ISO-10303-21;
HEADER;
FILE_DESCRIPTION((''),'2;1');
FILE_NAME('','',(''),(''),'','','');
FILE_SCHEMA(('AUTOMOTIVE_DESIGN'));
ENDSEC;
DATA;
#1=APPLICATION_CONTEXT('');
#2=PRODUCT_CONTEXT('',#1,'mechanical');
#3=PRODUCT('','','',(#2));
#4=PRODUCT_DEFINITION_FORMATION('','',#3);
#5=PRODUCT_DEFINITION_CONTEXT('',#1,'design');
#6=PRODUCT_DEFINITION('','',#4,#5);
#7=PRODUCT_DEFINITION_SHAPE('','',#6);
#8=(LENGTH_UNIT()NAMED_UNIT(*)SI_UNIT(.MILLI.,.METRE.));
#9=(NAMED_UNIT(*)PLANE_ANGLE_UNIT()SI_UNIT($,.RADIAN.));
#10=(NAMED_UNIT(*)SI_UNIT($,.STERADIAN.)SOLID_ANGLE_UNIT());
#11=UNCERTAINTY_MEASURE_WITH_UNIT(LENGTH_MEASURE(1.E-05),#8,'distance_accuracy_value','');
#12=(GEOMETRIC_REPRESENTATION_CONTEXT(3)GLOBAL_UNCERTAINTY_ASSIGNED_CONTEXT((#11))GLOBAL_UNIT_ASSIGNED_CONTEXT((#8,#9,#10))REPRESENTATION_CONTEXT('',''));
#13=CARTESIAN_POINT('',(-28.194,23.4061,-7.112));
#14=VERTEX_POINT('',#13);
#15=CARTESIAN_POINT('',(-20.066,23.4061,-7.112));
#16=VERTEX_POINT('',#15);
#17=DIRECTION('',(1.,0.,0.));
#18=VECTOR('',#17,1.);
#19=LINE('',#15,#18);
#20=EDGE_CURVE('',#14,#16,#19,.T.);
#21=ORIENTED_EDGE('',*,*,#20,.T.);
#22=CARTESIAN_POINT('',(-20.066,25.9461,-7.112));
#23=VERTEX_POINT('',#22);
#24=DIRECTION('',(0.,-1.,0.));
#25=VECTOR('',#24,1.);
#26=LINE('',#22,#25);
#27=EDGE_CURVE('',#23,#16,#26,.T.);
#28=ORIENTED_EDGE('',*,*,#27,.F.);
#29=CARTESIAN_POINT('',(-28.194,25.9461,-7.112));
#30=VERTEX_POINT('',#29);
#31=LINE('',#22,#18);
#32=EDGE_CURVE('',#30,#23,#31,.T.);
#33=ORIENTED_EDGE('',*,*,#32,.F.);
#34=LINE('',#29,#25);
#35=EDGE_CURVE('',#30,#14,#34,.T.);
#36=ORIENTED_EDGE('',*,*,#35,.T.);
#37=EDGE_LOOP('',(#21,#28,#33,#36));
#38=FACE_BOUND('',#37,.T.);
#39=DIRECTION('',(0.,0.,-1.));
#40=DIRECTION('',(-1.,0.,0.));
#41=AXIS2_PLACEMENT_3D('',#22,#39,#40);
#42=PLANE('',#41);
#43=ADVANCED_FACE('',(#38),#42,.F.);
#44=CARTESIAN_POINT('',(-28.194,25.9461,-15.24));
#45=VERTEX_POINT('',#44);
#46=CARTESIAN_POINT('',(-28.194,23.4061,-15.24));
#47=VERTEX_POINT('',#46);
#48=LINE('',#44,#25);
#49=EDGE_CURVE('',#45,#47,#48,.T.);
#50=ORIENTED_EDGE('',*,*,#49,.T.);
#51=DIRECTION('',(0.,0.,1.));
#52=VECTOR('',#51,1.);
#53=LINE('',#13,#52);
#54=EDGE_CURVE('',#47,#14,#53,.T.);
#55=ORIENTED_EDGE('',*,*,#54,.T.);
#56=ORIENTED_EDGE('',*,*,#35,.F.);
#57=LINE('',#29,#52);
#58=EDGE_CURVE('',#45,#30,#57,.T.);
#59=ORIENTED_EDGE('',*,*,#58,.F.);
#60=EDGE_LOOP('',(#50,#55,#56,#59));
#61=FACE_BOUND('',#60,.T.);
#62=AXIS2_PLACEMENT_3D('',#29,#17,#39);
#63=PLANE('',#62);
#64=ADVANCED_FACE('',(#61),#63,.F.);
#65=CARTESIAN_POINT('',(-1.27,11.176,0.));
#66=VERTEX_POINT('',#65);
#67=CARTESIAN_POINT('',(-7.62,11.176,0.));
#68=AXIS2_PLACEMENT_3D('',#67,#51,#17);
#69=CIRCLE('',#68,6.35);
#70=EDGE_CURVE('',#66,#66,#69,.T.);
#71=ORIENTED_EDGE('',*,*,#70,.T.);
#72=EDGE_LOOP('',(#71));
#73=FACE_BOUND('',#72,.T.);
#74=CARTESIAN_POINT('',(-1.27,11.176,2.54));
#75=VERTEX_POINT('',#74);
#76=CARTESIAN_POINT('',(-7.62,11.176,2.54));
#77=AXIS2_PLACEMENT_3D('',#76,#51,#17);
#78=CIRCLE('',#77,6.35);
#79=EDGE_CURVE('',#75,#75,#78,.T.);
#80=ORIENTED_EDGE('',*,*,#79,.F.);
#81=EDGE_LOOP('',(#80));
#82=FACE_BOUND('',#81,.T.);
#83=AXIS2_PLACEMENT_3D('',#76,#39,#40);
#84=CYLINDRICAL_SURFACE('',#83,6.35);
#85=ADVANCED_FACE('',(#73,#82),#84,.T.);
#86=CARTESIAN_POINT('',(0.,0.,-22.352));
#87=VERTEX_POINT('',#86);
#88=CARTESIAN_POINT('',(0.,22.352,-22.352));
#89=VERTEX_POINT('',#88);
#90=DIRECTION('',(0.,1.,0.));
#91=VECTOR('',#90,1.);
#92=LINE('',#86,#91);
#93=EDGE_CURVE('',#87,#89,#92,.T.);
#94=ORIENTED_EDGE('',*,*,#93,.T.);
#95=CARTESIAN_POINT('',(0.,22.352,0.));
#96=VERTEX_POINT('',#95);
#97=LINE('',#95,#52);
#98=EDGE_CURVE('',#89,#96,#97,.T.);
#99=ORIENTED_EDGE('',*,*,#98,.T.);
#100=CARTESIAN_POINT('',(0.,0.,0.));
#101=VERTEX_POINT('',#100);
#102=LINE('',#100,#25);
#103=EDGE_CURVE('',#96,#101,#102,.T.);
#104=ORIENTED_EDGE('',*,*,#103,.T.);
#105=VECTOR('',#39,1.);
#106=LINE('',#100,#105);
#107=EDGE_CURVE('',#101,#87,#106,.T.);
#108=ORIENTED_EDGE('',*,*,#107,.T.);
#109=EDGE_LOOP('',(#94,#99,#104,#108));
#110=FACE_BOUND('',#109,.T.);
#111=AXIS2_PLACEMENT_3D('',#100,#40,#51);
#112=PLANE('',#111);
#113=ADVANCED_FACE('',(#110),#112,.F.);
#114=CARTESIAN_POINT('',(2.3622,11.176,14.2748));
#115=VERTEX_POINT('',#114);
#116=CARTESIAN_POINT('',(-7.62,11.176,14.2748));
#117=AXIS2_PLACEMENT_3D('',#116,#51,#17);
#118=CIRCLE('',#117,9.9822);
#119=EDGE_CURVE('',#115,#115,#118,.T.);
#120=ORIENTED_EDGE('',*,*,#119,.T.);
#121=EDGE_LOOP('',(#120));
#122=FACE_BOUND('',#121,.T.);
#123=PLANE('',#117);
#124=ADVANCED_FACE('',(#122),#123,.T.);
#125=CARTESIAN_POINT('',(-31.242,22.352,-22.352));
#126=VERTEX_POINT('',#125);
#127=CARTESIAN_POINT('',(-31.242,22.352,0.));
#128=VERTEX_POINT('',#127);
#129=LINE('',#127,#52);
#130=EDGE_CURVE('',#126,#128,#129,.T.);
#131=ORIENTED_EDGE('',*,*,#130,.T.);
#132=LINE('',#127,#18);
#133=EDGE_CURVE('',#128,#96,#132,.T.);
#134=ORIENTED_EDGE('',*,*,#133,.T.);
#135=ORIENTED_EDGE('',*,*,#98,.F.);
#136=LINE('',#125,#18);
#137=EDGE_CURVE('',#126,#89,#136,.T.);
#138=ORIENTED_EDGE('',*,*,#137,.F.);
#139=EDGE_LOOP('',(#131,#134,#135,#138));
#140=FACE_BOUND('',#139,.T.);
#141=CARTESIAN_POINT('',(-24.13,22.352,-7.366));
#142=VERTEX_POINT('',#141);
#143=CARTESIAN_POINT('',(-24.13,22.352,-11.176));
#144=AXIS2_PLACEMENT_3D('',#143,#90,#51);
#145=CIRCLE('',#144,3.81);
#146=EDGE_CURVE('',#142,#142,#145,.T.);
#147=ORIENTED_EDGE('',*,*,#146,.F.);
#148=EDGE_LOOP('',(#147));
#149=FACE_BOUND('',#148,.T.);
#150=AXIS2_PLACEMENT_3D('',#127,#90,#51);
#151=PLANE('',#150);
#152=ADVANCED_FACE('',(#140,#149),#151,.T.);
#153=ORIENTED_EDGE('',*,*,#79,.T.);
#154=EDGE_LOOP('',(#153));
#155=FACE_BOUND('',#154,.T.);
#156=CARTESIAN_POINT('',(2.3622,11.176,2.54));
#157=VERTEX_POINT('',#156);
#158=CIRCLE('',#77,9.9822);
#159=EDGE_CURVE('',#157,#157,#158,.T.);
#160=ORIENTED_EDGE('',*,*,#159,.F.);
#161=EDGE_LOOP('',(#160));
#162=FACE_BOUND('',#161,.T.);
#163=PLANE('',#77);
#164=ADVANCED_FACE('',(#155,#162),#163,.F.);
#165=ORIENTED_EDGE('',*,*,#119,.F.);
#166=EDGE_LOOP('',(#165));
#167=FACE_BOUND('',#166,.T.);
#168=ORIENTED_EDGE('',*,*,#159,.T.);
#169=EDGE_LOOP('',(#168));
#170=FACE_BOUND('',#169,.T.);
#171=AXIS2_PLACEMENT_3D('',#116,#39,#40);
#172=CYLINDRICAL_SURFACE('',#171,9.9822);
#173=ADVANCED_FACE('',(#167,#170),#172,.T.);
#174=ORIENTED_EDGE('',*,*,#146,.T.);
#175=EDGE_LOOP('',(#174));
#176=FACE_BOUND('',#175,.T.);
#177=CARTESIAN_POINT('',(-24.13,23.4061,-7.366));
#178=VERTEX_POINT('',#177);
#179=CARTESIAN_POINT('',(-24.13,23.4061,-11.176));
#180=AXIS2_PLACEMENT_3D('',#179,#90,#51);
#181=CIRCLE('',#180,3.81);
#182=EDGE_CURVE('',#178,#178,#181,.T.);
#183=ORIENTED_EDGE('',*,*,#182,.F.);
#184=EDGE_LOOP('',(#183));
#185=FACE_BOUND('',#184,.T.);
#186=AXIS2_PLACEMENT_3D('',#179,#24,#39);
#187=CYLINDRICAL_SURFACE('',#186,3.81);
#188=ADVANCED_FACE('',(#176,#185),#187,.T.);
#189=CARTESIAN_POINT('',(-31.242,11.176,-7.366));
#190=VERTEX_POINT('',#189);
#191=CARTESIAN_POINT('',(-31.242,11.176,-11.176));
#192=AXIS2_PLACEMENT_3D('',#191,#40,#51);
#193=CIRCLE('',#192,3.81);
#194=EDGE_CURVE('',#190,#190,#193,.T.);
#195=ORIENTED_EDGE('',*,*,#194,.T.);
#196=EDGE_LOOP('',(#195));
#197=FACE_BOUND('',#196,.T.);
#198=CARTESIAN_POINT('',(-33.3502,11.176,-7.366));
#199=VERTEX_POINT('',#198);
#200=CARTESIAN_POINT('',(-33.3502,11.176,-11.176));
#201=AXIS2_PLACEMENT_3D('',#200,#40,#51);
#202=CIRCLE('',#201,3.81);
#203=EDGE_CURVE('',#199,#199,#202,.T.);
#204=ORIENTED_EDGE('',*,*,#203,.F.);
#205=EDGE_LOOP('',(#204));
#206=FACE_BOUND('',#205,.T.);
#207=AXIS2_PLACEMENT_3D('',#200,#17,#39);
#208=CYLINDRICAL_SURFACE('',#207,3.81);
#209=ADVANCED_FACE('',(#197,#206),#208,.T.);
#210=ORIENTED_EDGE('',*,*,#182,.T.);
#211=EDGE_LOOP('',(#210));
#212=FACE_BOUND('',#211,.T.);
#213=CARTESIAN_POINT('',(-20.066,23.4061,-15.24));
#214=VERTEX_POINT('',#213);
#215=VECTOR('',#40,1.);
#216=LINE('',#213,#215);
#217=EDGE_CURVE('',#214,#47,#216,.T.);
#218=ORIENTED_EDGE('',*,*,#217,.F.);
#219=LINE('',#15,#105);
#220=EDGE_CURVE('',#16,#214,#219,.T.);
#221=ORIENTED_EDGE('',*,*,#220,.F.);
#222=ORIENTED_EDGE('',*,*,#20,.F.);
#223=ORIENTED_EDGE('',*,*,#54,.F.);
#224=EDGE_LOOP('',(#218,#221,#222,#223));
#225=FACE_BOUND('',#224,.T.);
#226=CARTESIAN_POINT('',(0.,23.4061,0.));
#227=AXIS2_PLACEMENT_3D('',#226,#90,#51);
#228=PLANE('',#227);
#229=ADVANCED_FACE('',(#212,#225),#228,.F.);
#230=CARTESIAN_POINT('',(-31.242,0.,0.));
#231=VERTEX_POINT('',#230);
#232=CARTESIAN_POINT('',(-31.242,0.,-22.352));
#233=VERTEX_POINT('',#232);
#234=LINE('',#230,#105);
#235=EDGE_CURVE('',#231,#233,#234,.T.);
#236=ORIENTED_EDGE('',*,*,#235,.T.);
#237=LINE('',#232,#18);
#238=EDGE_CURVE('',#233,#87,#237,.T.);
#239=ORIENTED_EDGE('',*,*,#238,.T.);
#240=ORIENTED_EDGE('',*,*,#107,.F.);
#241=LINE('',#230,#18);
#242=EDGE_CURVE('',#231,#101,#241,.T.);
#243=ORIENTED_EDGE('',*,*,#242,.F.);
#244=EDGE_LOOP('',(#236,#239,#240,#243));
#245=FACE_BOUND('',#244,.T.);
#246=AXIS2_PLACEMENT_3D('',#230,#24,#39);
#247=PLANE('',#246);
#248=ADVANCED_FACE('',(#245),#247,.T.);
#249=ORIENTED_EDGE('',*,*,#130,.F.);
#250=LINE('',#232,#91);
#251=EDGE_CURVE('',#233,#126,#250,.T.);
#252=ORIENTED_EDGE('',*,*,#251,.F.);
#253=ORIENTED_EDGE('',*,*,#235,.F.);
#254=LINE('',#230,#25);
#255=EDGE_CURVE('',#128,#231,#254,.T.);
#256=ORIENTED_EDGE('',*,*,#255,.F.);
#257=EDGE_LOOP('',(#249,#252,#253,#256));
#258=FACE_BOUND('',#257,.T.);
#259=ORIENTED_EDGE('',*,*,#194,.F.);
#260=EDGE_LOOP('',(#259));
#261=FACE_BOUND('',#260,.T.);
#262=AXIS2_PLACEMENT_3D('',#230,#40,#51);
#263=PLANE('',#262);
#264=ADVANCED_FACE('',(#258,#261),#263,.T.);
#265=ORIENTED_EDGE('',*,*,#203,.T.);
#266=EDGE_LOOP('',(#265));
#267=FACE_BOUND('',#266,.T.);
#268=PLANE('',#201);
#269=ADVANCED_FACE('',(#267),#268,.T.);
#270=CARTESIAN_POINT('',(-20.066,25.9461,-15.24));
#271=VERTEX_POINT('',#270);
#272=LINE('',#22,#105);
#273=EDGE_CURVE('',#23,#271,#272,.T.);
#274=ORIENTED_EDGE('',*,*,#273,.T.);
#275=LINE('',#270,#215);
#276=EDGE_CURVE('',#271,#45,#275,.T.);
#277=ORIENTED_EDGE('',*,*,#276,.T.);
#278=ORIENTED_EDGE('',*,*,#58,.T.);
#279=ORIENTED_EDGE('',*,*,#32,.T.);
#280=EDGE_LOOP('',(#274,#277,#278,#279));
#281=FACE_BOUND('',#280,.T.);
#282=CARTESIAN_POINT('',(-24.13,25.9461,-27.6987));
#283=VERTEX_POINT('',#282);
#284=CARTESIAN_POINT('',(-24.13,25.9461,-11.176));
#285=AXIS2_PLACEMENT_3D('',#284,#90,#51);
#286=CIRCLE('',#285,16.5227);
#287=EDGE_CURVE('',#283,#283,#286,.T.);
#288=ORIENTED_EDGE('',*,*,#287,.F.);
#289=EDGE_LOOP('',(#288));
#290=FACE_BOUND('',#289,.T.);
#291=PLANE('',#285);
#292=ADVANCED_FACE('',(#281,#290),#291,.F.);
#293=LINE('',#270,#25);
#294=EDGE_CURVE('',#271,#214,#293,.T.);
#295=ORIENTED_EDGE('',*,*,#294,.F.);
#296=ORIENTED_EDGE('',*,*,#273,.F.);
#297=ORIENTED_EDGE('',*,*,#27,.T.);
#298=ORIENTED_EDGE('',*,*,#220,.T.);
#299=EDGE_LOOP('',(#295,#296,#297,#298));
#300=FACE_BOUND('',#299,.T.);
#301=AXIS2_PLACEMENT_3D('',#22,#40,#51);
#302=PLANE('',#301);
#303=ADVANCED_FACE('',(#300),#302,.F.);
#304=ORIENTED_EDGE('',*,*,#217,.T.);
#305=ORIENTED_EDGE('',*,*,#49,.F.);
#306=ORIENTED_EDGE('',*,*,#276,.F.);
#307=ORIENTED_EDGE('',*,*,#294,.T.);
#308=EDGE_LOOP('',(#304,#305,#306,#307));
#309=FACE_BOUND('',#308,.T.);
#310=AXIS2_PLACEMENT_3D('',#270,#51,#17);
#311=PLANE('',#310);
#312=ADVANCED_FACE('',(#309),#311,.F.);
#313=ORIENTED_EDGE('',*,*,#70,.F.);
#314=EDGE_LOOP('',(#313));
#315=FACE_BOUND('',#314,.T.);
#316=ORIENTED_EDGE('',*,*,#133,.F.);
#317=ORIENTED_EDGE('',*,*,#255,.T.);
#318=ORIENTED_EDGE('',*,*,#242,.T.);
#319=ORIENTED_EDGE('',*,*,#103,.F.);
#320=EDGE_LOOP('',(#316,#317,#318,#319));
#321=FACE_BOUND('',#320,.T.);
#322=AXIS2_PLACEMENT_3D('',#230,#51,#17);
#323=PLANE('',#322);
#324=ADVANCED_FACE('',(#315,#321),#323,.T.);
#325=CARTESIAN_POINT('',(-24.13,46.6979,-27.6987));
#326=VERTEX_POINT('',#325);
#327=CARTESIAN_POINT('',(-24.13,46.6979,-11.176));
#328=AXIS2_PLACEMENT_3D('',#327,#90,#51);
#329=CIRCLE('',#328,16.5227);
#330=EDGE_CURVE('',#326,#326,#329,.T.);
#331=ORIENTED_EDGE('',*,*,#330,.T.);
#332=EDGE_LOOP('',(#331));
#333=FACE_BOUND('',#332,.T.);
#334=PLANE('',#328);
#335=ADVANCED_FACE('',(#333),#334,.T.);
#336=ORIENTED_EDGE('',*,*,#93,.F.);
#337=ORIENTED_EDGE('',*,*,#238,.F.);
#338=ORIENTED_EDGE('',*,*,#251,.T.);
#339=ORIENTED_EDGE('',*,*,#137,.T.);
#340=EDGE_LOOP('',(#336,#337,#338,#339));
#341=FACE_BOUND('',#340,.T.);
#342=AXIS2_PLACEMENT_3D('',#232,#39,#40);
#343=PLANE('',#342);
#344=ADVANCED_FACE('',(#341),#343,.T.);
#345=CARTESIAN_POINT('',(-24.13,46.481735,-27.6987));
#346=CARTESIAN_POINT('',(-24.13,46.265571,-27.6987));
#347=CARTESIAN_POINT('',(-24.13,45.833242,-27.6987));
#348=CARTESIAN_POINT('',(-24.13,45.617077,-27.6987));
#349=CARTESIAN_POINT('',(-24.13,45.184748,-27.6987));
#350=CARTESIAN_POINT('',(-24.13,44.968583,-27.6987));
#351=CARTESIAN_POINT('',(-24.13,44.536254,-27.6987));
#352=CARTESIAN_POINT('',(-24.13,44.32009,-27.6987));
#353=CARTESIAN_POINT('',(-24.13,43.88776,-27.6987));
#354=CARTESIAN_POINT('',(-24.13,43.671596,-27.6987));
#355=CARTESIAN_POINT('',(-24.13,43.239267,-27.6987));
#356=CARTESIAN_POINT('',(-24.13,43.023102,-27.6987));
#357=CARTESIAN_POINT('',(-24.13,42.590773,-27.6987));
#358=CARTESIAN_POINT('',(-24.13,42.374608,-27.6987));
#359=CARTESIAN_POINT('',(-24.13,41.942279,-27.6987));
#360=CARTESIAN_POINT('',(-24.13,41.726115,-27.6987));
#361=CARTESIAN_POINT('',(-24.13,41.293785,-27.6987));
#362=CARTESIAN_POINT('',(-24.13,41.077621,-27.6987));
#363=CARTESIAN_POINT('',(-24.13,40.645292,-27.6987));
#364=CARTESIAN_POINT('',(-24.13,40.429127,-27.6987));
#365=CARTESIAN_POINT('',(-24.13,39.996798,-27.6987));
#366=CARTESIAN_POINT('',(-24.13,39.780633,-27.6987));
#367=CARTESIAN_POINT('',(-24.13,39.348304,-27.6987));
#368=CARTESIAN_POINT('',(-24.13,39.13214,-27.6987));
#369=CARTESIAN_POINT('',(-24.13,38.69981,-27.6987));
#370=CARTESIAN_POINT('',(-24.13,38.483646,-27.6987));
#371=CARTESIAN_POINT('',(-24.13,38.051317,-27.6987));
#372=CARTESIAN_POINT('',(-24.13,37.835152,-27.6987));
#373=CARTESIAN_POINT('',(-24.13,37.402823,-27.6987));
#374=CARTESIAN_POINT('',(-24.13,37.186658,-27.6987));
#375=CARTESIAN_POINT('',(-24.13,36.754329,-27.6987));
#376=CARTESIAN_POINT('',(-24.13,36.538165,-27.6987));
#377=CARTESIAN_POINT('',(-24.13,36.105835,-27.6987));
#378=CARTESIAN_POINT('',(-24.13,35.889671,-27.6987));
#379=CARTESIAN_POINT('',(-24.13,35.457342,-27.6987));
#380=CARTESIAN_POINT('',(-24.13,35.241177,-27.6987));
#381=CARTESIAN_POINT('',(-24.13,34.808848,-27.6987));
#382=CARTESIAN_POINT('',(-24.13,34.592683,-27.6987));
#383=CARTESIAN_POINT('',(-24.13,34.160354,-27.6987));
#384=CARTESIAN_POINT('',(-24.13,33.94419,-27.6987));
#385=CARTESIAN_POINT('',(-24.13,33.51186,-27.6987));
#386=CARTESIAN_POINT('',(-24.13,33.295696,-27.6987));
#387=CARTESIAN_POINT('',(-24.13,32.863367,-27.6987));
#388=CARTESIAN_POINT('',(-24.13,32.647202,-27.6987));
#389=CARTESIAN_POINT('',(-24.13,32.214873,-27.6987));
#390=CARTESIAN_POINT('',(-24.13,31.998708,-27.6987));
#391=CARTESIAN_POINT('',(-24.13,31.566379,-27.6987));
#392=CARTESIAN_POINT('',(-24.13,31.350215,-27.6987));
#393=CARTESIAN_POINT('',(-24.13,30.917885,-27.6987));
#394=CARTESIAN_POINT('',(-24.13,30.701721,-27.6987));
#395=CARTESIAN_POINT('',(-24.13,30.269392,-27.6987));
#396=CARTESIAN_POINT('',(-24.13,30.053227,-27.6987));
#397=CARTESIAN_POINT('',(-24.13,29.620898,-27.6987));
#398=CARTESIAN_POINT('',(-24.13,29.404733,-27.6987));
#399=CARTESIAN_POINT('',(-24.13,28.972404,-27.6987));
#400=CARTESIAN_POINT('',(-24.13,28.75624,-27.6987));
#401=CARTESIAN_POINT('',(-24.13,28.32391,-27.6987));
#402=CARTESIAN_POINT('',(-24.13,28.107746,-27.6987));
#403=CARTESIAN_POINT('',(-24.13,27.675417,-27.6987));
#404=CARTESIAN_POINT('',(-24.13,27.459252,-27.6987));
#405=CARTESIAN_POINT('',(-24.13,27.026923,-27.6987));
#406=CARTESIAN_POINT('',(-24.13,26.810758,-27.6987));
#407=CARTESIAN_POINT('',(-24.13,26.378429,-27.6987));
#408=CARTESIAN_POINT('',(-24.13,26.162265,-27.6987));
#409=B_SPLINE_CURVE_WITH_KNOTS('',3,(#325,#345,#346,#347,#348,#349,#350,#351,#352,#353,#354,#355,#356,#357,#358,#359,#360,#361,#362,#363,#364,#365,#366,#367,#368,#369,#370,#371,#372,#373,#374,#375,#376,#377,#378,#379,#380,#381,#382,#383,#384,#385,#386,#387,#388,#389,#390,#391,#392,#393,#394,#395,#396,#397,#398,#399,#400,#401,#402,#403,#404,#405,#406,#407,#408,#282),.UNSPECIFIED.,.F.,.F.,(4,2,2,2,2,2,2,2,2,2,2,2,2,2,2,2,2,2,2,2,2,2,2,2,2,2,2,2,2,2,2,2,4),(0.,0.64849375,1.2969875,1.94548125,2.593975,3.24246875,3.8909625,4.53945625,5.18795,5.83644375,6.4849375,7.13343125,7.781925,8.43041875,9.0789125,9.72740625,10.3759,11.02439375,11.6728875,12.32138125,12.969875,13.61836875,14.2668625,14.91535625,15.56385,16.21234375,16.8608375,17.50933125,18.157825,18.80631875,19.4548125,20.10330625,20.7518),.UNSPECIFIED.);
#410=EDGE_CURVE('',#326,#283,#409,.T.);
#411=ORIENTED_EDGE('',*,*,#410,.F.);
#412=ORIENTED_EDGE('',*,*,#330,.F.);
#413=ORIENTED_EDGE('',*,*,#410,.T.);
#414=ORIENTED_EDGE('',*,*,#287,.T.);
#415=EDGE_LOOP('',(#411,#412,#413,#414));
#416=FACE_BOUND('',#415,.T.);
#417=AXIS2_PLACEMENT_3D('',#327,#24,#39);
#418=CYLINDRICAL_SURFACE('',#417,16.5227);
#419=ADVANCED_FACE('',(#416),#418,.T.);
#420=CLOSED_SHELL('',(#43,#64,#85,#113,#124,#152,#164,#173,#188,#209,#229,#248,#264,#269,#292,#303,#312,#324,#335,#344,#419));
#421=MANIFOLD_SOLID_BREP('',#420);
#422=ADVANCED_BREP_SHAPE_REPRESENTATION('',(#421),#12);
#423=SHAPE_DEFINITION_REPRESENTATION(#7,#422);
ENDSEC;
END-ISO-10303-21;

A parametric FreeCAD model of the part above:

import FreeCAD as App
import Part
import Sketcher

V = App.Vector
Q = App.Units.Quantity


def add_polygon(sketch, points):
    """Adds a closed chain of lines whose ends are joined by coincident constraints."""
    first, n = sketch.GeometryCount, len(points)
    for a, b in zip(points, points[1:] + points[:1]):
        sketch.addGeometry(Part.LineSegment(App.Vector(*a, 0), App.Vector(*b, 0)), False)
    for i in range(n):
        sketch.addConstraint(Sketcher.Constraint("Coincident", first + i, 2, first + (i + 1) % n, 1))

doc = App.newDocument("Part")
body = doc.addObject("PartDesign::Body", "Body")

sketch1 = body.newObject("Sketcher::SketchObject", "Sketch")
sketch1.AttachmentSupport = (doc.getObject("YZ_Plane"), [""])
sketch1.MapMode = "FlatFace"
add_polygon(sketch1, [(22, 0), (0, 0), (0, -22), (22, -22)])
sketch1.addConstraint([
    Sketcher.Constraint("Horizontal", 0),
    Sketcher.Constraint("Vertical", 1),
    Sketcher.Constraint("Horizontal", 2),
    Sketcher.Constraint("Vertical", 3),
    Sketcher.Constraint("Coincident", 0, 2, -1, 1),
    Sketcher.Constraint("Equal", 2, 1),
    Sketcher.Constraint("DistanceX", 0, 2, 0, 1, Q("0.88 in")),
])
pad1 = body.newObject("PartDesign::Pad", "Pad")
pad1.Profile = sketch1
pad1.Length = Q("1.23 in")
pad1.Reversed = True

sketch2 = body.newObject("Sketcher::SketchObject", "Sketch001")
sketch2.AttachmentSupport = (doc.getObject("XZ_Plane"), [""])
sketch2.MapMode = "FlatFace"
sketch2.AttachmentOffset = App.Placement(V(0, 0, -0.88 * 25.4), App.Rotation())
sketch2.addGeometry(Part.Circle(V(-24.1, -11.2, 0), V(0, 0, 1), 3.8), False)
sketch2.addConstraint([
    Sketcher.Constraint("Diameter", 0, Q("0.3 in")),
    Sketcher.Constraint("DistanceX", 0, 3, -1, 1, Q("0.95 in")),
    Sketcher.Constraint("DistanceY", 0, 3, -1, 1, Q("0.44 in")),
])
pad2 = body.newObject("PartDesign::Pad", "Pad001")
pad2.Profile = sketch2
pad2.Length = Q("0.0415 in")
pad2.Reversed = True

sketch3 = body.newObject("Sketcher::SketchObject", "Sketch002")
sketch3.AttachmentSupport = (doc.getObject("XZ_Plane"), [""])
sketch3.MapMode = "FlatFace"
sketch3.AttachmentOffset = App.Placement(V(0, 0, -0.9215 * 25.4), App.Rotation())
add_polygon(sketch3, [(-28, -15), (-28, -7), (-20, -7), (-20, -15)])
sketch3.addConstraint([
    Sketcher.Constraint("Vertical", 0),
    Sketcher.Constraint("Horizontal", 1),
    Sketcher.Constraint("Vertical", 2),
    Sketcher.Constraint("Horizontal", 3),
    Sketcher.Constraint("Equal", 3, 0),
    Sketcher.Constraint("DistanceX", 1, 1, 1, 2, Q("0.32 in")),
    Sketcher.Constraint("DistanceY", 2, 2, -1, 1, Q("0.6 in")),
    Sketcher.Constraint("DistanceX", 0, 2, -1, 1, Q("1.11 in")),
])
pad3 = body.newObject("PartDesign::Pad", "Pad002")
pad3.Profile = sketch3
pad3.Length = Q("0.1 in")
pad3.Reversed = True

sketch4 = body.newObject("Sketcher::SketchObject", "Sketch003")
sketch4.AttachmentSupport = (doc.getObject("XZ_Plane"), [""])
sketch4.MapMode = "FlatFace"
sketch4.AttachmentOffset = App.Placement(V(0, 0, -1.0215 * 25.4), App.Rotation())
sketch4.addGeometry(Part.Circle(V(-24, -11, 0), V(0, 0, 1), 17), False)
sketch4.addConstraint([
    Sketcher.Constraint("Diameter", 0, Q("1.301 in")),
    Sketcher.Constraint("DistanceX", 0, 3, -1, 1, Q("0.95 in")),
    Sketcher.Constraint("DistanceY", 0, 3, -1, 1, Q("0.44 in")),
])
pad4 = body.newObject("PartDesign::Pad", "Pad003")
pad4.Profile = sketch4
pad4.Length = Q("0.817 in")
pad4.Reversed = True

sketch5 = body.newObject("Sketcher::SketchObject", "Sketch004")
sketch5.AttachmentSupport = (doc.getObject("YZ_Plane"), [""])
sketch5.MapMode = "FlatFace"
sketch5.AttachmentOffset = App.Placement(V(0, 0, -1.23 * 25.4), App.Rotation())
sketch5.addGeometry(Part.Circle(V(11.2, -11.2, 0), V(0, 0, 1), 3.8), False)
sketch5.addConstraint([
    Sketcher.Constraint("Diameter", 0, Q("0.3 in")),
    Sketcher.Constraint("DistanceX", -1, 1, 0, 3, Q("0.44 in")),
    Sketcher.Constraint("DistanceY", 0, 3, -1, 1, Q("0.44 in")),
])
pad5 = body.newObject("PartDesign::Pad", "Pad004")
pad5.Profile = sketch5
pad5.Length = Q("0.083 in")
pad5.Reversed = True

sketch6 = body.newObject("Sketcher::SketchObject", "Sketch005")
sketch6.AttachmentSupport = (doc.getObject("XY_Plane"), [""])
sketch6.MapMode = "FlatFace"
sketch6.addGeometry(Part.Circle(V(-8, 11, 0), V(0, 0, 1), 6), False)
sketch6.addConstraint([
    Sketcher.Constraint("Diameter", 0, Q("0.5 in")),
    Sketcher.Constraint("DistanceX", 0, 3, -1, 1, Q("0.3 in")),
    Sketcher.Constraint("DistanceY", -1, 1, 0, 3, Q("0.44 in")),
])
pad6 = body.newObject("PartDesign::Pad", "Pad005")
pad6.Profile = sketch6
pad6.Length = Q("0.1 in")

sketch7 = body.newObject("Sketcher::SketchObject", "Sketch006")
sketch7.AttachmentSupport = (doc.getObject("XY_Plane"), [""])
sketch7.MapMode = "FlatFace"
sketch7.AttachmentOffset = App.Placement(V(0, 0, 0.1 * 25.4), App.Rotation())
sketch7.addGeometry(Part.Circle(V(-8, 11, 0), V(0, 0, 1), 10), False)
sketch7.addConstraint([
    Sketcher.Constraint("Diameter", 0, Q("0.786 in")),
    Sketcher.Constraint("DistanceX", 0, 3, -1, 1, Q("0.3 in")),
    Sketcher.Constraint("DistanceY", -1, 1, 0, 3, Q("0.44 in")),
])
pad7 = body.newObject("PartDesign::Pad", "Pad006")
pad7.Profile = sketch7
pad7.Length = Q("0.462 in")

doc.recompute()
